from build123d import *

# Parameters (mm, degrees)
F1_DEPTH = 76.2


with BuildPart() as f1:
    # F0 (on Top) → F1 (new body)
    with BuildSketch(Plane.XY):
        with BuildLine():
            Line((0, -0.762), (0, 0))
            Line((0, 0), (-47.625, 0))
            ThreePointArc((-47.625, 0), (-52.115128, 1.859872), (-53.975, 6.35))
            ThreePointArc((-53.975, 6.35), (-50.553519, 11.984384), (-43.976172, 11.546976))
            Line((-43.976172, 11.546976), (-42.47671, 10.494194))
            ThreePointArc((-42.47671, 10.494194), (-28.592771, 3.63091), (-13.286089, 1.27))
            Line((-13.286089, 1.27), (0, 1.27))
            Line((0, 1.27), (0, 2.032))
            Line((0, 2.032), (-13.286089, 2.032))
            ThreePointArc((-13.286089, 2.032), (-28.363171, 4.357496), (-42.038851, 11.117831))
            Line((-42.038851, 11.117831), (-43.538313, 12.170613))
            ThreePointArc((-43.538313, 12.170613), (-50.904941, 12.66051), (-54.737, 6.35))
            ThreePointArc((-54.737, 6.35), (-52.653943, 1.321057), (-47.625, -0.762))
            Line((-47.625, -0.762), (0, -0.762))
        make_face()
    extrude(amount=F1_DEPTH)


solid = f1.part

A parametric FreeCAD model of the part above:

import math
import FreeCAD as App
import Part
import Sketcher
Q = App.Units.Quantity

doc = App.newDocument("Part")
body = doc.addObject("PartDesign::Body", "Body")

sketch1 = body.newObject("Sketcher::SketchObject", "Sketch")
sketch1.AttachmentSupport = (doc.getObject("XY_Plane"), [""])
sketch1.MapMode = "FlatFace"
sketch1.addGeometry([
    Part.LineSegment(App.Vector(0, -0.762, 0), App.Vector(0, 0, 0)),
    Part.LineSegment(App.Vector(0, 0, 0), App.Vector(-47.625, 0, 0)),
    Part.ArcOfCircle(Part.Circle(App.Vector(-47.625, 6.35, 0), App.Vector(0, 0, 1), 6.35), math.radians(-179.999998), math.radians(-90.000002)),
    Part.ArcOfCircle(Part.Circle(App.Vector(-47.625, 6.350001, 0), App.Vector(0, 0, 1), 6.35), math.radians(54.927073), math.radians(180.000006)),
    Part.LineSegment(App.Vector(-43.976172, 11.546976, 0), App.Vector(-42.47671, 10.494194, 0)),
    Part.ArcOfCircle(Part.Circle(App.Vector(-13.286086, 52.070009, 0), App.Vector(0, 0, 1), 50.800009), math.radians(-125.072918), math.radians(-90.000003)),
    Part.LineSegment(App.Vector(-13.286089, 1.27, 0), App.Vector(0, 1.27, 0)),
    Part.LineSegment(App.Vector(0, 1.27, 0), App.Vector(0, 2.032, 0)),
    Part.LineSegment(App.Vector(0, 2.032, 0), App.Vector(-13.286089, 2.032, 0)),
    Part.ArcOfCircle(Part.Circle(App.Vector(-13.286088, 52.070004, 0), App.Vector(0, 0, 1), 50.038004), math.radians(-125.07292), math.radians(-90.000001)),
    Part.LineSegment(App.Vector(-42.038851, 11.117831, 0), App.Vector(-43.538313, 12.170613, 0)),
    Part.ArcOfCircle(Part.Circle(App.Vector(-47.625, 6.350001, 0), App.Vector(0, 0, 1), 7.112), math.radians(54.927075), math.radians(180.000004)),
    Part.ArcOfCircle(Part.Circle(App.Vector(-47.624999, 6.350001, 0), App.Vector(0, 0, 1), 7.112001), math.radians(-179.999988), math.radians(-90.000012)),
    Part.LineSegment(App.Vector(-47.625, -0.762, 0), App.Vector(0, -0.762, 0)),
], False)
sketch1.addConstraint([
    Sketcher.Constraint("Coincident", 0, 2, 1, 1),
    Sketcher.Constraint("Tangent", 1, 2, 2, 2),
    Sketcher.Constraint("Tangent", 2, 1, 3, 2),
    Sketcher.Constraint("Tangent", 3, 1, 4, 1),
    Sketcher.Constraint("Tangent", 4, 2, 5, 1),
    Sketcher.Constraint("Tangent", 5, 2, 6, 1),
    Sketcher.Constraint("Coincident", 6, 2, 7, 1),
    Sketcher.Constraint("Coincident", 7, 2, 8, 1),
    Sketcher.Constraint("Tangent", 8, 2, 9, 2),
    Sketcher.Constraint("Tangent", 9, 1, 10, 1),
    Sketcher.Constraint("Tangent", 10, 2, 11, 1),
    Sketcher.Constraint("Tangent", 11, 2, 12, 1),
    Sketcher.Constraint("Tangent", 12, 2, 13, 1),
    Sketcher.Constraint("Coincident", 13, 2, 0, 1),
    Sketcher.Constraint("Vertical", 0),
    Sketcher.Constraint("Horizontal", 1),
    Sketcher.Constraint("Horizontal", 6),
    Sketcher.Constraint("Vertical", 7),
    Sketcher.Constraint("Horizontal", 8),
    Sketcher.Constraint("Horizontal", 13),
    Sketcher.Constraint("Coincident", 0, 2, -1, 1),
    Sketcher.Constraint("Coincident", 9, 3, 5, 3),
    Sketcher.Constraint("Coincident", 11, 3, 2, 3),
    Sketcher.Constraint("Equal", 2, 3),
    Sketcher.Constraint("Equal", 11, 12),
    Sketcher.Constraint("PointOnObject", 6, 2, -2),
    Sketcher.Constraint("Parallel", 4, 10),
    Sketcher.Constraint("Horizontal", 12, 3, 2, 1),
    Sketcher.Constraint("Horizontal", 2, 1, 11, 2),
    Sketcher.Constraint("Radius", 2, Q("0.25 in")),
    Sketcher.Constraint("Radius", 9, Q("1.9700001 in")),
    Sketcher.Constraint("Radius", 11, Q("0.28 in")),
    Sketcher.Constraint("DistanceY", 3, 3, 9, 3, Q("1.8000001 in")),
    Sketcher.Constraint("DistanceX", 1, 2, 1, 1, Q("1.875 in")),
    Sketcher.Constraint("DistanceX", 6, 1, 6, 2, 13.286089),
])
pad1 = body.newObject("PartDesign::Pad", "Pad")
pad1.Profile = sketch1
pad1.Length = Q("3 in")

doc.recompute()
